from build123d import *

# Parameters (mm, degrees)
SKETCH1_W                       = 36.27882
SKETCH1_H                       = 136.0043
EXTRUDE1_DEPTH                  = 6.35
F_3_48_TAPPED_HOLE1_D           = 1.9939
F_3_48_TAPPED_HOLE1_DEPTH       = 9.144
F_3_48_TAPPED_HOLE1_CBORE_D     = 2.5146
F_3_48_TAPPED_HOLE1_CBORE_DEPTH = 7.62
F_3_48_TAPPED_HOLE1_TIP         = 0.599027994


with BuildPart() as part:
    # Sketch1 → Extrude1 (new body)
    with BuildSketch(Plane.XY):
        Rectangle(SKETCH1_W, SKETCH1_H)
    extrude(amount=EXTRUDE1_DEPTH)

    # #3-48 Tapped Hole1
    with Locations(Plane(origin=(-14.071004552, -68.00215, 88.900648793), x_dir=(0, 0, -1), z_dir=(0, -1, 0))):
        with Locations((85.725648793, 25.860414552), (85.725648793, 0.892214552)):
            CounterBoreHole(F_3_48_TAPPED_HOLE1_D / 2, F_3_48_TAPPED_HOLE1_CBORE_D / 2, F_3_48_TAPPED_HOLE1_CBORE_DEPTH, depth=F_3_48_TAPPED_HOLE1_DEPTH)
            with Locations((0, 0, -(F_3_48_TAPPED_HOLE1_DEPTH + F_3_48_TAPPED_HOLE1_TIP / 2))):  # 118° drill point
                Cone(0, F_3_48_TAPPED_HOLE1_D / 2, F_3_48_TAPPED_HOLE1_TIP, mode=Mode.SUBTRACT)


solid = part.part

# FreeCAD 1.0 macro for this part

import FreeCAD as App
import Part
import Sketcher
from FreeCAD import Vector
Q = App.Units.Quantity

doc = App.newDocument("Part")
body = doc.addObject("PartDesign::Body", "Body")

# Sketch on XY plane
sketch1 = body.newObject("Sketcher::SketchObject", "Sketch")
sketch1.AttachmentSupport = (doc.getObject("XY_Plane"), [""])
sketch1.MapMode = "FlatFace"
sketch1.addGeometry(Part.LineSegment(Vector(-18.13941, 68.00215, 0), Vector(-18.13941, -68.00215, 0)), False)
sketch1.addGeometry(Part.LineSegment(Vector(-18.13941, -68.00215, 0), Vector(18.13941, -68.00215, 0)), False)
sketch1.addGeometry(Part.LineSegment(Vector(18.13941, -68.00215, 0), Vector(18.13941, 68.00215, 0)), False)
sketch1.addGeometry(Part.LineSegment(Vector(18.13941, 68.00215, 0), Vector(-18.13941, 68.00215, 0)), False)
sketch1.addConstraint(Sketcher.Constraint("Coincident", 0, 2, 1, 1))
sketch1.addConstraint(Sketcher.Constraint("Coincident", 1, 2, 2, 1))
sketch1.addConstraint(Sketcher.Constraint("Coincident", 2, 2, 3, 1))
sketch1.addConstraint(Sketcher.Constraint("Coincident", 3, 2, 0, 1))
sketch1.addConstraint(Sketcher.Constraint("Vertical", 0))
sketch1.addConstraint(Sketcher.Constraint("Horizontal", 1))
sketch1.addConstraint(Sketcher.Constraint("Vertical", 2))
sketch1.addConstraint(Sketcher.Constraint("Horizontal", 3))
sketch1.addConstraint(Sketcher.Constraint("Symmetric", 0, 2, 2, 2, -1, 1))
sketch1.addConstraint(Sketcher.Constraint("DistanceX", 1, 1, 1, 2, Q("1.4283 in")))
sketch1.addConstraint(Sketcher.Constraint("DistanceY", 0, 2, 0, 1, Q("5.3545 in")))
pad1 = body.newObject("PartDesign::Pad", "Pad")
pad1.Profile = sketch1
pad1.Length = Q("0.25 in")

# Sketch on XZ plane
sketch2 = body.newObject("Sketcher::SketchObject", "Sketch001")
sketch2.AttachmentSupport = (doc.getObject("XZ_Plane"), [""])
sketch2.MapMode = "FlatFace"
sketch2.AttachmentOffset = App.Placement(Vector(0, 0, 68.00215), App.Rotation())
sketch2.addGeometry(Part.Circle(Vector(11.78941, 3.175, 0), Vector(0, 0, 1), 0.99695), False)
sketch2.addGeometry(Part.Circle(Vector(-13.17879, 3.175, 0), Vector(0, 0, 1), 0.99695), False)
sketch2.addConstraint(Sketcher.Constraint("Equal", 0, 1))
sketch2.addConstraint(Sketcher.Constraint("Horizontal", 0, 3, 1, 3))
sketch2.addConstraint(Sketcher.Constraint("Diameter", 0, Q("0.0785 in")))
sketch2.addConstraint(Sketcher.Constraint("DistanceY", -1, 1, 0, 3, Q("0.125 in")))
sketch2.addConstraint(Sketcher.Constraint("DistanceX", 1, 3, 0, 3, Q("0.983 in")))
sketch2.addConstraint(Sketcher.Constraint("DistanceX", -1, 1, 0, 3, 11.78941))
doc.recompute()
hole = body.newObject("PartDesign::Hole", "Hole")
hole.Profile = sketch2
hole.ThreadType = "None"
hole.Diameter = Q("0.0785 in")
hole.DepthType = "Dimension"
hole.Depth = Q("0.36 in")
hole.DrillPoint = "Angled"
hole.DrillPointAngle = 118
hole.HoleCutType = "Counterbore"
hole.HoleCutDiameter = Q("0.099 in")
hole.HoleCutDepth = Q("0.3 in")

doc.recompute()
